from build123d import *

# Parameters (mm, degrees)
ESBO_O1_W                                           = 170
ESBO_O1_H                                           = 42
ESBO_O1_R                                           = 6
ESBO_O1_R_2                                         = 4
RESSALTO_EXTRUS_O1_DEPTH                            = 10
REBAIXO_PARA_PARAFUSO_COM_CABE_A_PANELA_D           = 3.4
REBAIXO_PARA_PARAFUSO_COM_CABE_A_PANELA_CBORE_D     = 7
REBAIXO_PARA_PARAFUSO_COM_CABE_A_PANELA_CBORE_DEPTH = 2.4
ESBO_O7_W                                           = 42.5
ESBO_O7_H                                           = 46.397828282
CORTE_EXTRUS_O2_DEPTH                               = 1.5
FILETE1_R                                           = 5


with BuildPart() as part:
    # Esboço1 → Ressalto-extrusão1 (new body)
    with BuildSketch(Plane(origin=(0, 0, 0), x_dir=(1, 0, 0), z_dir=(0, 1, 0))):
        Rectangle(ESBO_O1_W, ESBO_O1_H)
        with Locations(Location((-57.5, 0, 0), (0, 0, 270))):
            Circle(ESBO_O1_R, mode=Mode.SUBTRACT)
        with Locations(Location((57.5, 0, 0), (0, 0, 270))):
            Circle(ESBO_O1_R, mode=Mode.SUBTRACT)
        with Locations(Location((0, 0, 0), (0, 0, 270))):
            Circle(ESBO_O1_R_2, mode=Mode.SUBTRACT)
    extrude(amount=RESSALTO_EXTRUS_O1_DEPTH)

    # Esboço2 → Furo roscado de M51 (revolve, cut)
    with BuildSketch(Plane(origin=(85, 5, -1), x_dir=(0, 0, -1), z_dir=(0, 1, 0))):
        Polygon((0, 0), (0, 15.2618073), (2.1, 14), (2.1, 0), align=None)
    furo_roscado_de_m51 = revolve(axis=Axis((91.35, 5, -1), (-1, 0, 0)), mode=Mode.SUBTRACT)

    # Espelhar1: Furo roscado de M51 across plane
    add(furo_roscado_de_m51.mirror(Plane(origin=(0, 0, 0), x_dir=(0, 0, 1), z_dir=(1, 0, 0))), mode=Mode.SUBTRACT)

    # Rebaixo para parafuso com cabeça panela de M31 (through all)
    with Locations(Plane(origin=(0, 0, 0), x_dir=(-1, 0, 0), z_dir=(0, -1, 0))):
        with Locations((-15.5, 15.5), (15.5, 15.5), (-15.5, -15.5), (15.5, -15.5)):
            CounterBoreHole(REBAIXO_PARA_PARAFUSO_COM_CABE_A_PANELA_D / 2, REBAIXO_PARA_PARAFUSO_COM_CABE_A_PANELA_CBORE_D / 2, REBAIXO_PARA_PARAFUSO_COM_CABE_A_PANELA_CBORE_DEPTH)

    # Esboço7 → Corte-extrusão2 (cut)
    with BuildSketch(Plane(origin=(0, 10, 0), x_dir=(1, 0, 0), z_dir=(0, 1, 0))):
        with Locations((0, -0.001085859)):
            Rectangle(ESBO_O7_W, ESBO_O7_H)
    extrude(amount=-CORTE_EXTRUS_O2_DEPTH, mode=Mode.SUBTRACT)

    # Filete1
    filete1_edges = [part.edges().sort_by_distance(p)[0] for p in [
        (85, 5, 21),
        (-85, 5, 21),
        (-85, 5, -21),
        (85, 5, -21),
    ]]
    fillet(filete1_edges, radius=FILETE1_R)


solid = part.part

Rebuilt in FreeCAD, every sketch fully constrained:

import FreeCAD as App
import Part
import Sketcher
Q = App.Units.Quantity


def edges_at(feature, points):
    """Names of the edges that pass closest to the given points."""
    edges = feature.Shape.Edges
    near = lambda p: min(range(len(edges)), key=lambda i: edges[i].distToShape(Part.Vertex(*p))[0])
    return sorted({f"Edge{near(p) + 1}" for p in points})


def add_polygon(sketch, points):
    """Adds a closed chain of lines whose ends are joined by coincident constraints."""
    first, n = sketch.GeometryCount, len(points)
    for a, b in zip(points, points[1:] + points[:1]):
        sketch.addGeometry(Part.LineSegment(App.Vector(*a, 0), App.Vector(*b, 0)), False)
    for i in range(n):
        sketch.addConstraint(Sketcher.Constraint("Coincident", first + i, 2, first + (i + 1) % n, 1))

doc = App.newDocument("Part")
params = doc.addObject("Spreadsheet::Sheet", "Params")
for row, (alias, value) in enumerate([
    ("sketch1_diameter", "12 mm"),
    ("sketch1_diameter2", "8 mm"),
    ("sketch1_width", "170 mm"),
    ("sketch1_height", "42 mm"),
    ("pad1_length", "10 mm"),
    ("sketch2_width", "14 mm"),
    ("sketch2_height", "2.1 mm"),
    ("groove_angle", "360 deg"),
    ("sketch3_diameter", "3.4 mm"),
    ("hole_diameter", "3.4 mm"),
    ("hole_cbore_diameter", "7 mm"),
    ("hole_cbore_depth", "2.4 mm"),
    ("sketch4_width", "42.5 mm"),
    ("pocket1_length", "1.5 mm"),
    ("fillet_radius", "5 mm"),
], start=1):
    params.set(f"A{row}", alias)
    params.set(f"B{row}", "=" + value)
    params.setAlias(f"B{row}", alias)

body = doc.addObject("PartDesign::Body", "Body")

sketch1 = doc.addObject("Sketcher::SketchObject", "Sketch")
body.addObject(sketch1)
sketch1.AttachmentSupport = (doc.XZ_Plane, [""])
sketch1.MapMode = "FlatFace"
add_polygon(sketch1, [(-85, -21), (-85, 21), (85, 21), (85, -21)])
sketch1.addGeometry(Part.Circle(App.Vector(-57.5, 0, 0), App.Vector(0, 0, 1), 6), False)
sketch1.addGeometry(Part.Circle(App.Vector(0, 0, 0), App.Vector(0, 0, 1), 4), False)
sketch1.addGeometry(Part.Circle(App.Vector(57.5, 0, 0), App.Vector(0, 0, 1), 6), False)
sketch1.addConstraint(Sketcher.Constraint("Vertical", 0))
sketch1.addConstraint(Sketcher.Constraint("Horizontal", 1))
sketch1.addConstraint(Sketcher.Constraint("Vertical", 2))
sketch1.addConstraint(Sketcher.Constraint("Horizontal", 3))
sketch1.addConstraint(Sketcher.Constraint("Coincident", 5, 3, -1, 1))
sketch1.addConstraint(Sketcher.Constraint("Equal", 4, 6))
sketch1.addConstraint(Sketcher.Constraint("Symmetric", 4, 3, 6, 3, -1, 1))
sketch1.addConstraint(Sketcher.Constraint("Symmetric", 0, 2, 2, 2, -1, 1))
sketch1.addConstraint(Sketcher.Constraint("PointOnObject", 4, 3, -1))
sketch1.addConstraint(Sketcher.Constraint("Diameter", 4, Q("12 mm")))
sketch1.addConstraint(Sketcher.Constraint("Diameter", 5, Q("8 mm")))
sketch1.addConstraint(Sketcher.Constraint("DistanceX", 1, 1, 1, 2, Q("170 mm")))
sketch1.addConstraint(Sketcher.Constraint("DistanceY", 0, 1, 0, 2, Q("42 mm")))
sketch1.addConstraint(Sketcher.Constraint("DistanceX", 4, 3, 6, 3, Q("115 mm")))
sketch1.setExpression("Constraints[13]", "Params.sketch1_diameter")
sketch1.setExpression("Constraints[14]", "Params.sketch1_diameter2")
sketch1.setExpression("Constraints[15]", "Params.sketch1_width")
sketch1.setExpression("Constraints[16]", "Params.sketch1_height")
pad1 = doc.addObject("PartDesign::Pad", "Pad")
body.addObject(pad1)
pad1.Profile = sketch1
pad1.setExpression("Length", "Params.pad1_length")
pad1.Reversed = True

sketch2 = doc.addObject("Sketcher::SketchObject", "Sketch001")
body.addObject(sketch2)
sketch2.AttachmentSupport = (doc.XZ_Plane, [""])
sketch2.MapMode = "FlatFace"
sketch2.AttachmentOffset = App.Placement(App.Vector(0, 0, -5), App.Rotation())
add_polygon(sketch2, [(69.7, -1), (85, -1), (85, -3.1), (71, -3.1)])
sketch2.addGeometry(Part.LineSegment(App.Vector(85, -1, 0), App.Vector(69.7, -1, 0)), True)
sketch2.addConstraint(Sketcher.Constraint("Horizontal", 0))
sketch2.addConstraint(Sketcher.Constraint("Vertical", 1))
sketch2.addConstraint(Sketcher.Constraint("Horizontal", 2))
sketch2.addConstraint(Sketcher.Constraint("Horizontal", 4))
sketch2.addConstraint(Sketcher.Constraint("Coincident", 4, 1, 0, 2))
sketch2.addConstraint(Sketcher.Constraint("Equal", 0, 4))
sketch2.addConstraint(Sketcher.Constraint("DistanceX", 2, 2, 2, 1, Q("14 mm")))
sketch2.addConstraint(Sketcher.Constraint("Angle", 3, Q("121 deg")))
sketch2.addConstraint(Sketcher.Constraint("DistanceY", 1, 2, 1, 1, Q("2.1 mm")))
sketch2.addConstraint(Sketcher.Constraint("DistanceX", -1, 1, 0, 2, Q("85 mm")))
sketch2.addConstraint(Sketcher.Constraint("DistanceY", 0, 2, -1, 1, Q("1 mm")))
sketch2.setExpression("Constraints[10]", "Params.sketch2_width")
sketch2.setExpression("Constraints[12]", "Params.sketch2_height")
groove = doc.addObject("PartDesign::Groove", "Groove")
body.addObject(groove)
groove.Profile = sketch2
groove.ReferenceAxis = (sketch2, ["Axis0"])
groove.setExpression("Angle", "Params.groove_angle")
doc.recompute()

mirrored = doc.addObject("PartDesign::Mirrored", "Mirrored")
body.addObject(mirrored)
mirrored.Originals = [groove]
mirrored.MirrorPlane = (doc.YZ_Plane, [""])
body.Tip = mirrored

sketch3 = doc.addObject("Sketcher::SketchObject", "Sketch002")
body.addObject(sketch3)
sketch3.AttachmentSupport = (doc.XZ_Plane, [""])
sketch3.MapMode = "FlatFace"
sketch3.addGeometry(Part.Circle(App.Vector(15.5, -15.5, 0), App.Vector(0, 0, 1), 1.7), False)
sketch3.addGeometry(Part.Circle(App.Vector(-15.5, -15.5, 0), App.Vector(0, 0, 1), 1.7), False)
sketch3.addGeometry(Part.Circle(App.Vector(15.5, 15.5, 0), App.Vector(0, 0, 1), 1.7), False)
sketch3.addGeometry(Part.Circle(App.Vector(-15.5, 15.5, 0), App.Vector(0, 0, 1), 1.7), False)
sketch3.addConstraint(Sketcher.Constraint("Equal", 0, 1))
sketch3.addConstraint(Sketcher.Constraint("Equal", 1, 2))
sketch3.addConstraint(Sketcher.Constraint("Equal", 2, 3))
sketch3.addConstraint(Sketcher.Constraint("Symmetric", 1, 3, 2, 3, -1, 1))
sketch3.addConstraint(Sketcher.Constraint("Symmetric", 0, 3, 3, 3, -1, 1))
sketch3.addConstraint(Sketcher.Constraint("Symmetric", 0, 3, 1, 3, -2))
sketch3.addConstraint(Sketcher.Constraint("Diameter", 0, Q("3.4 mm")))
sketch3.addConstraint(Sketcher.Constraint("DistanceX", 1, 3, 0, 3, Q("31 mm")))
sketch3.addConstraint(Sketcher.Constraint("DistanceY", 0, 3, 2, 3, Q("31 mm")))
sketch3.setExpression("Constraints[6]", "Params.sketch3_diameter")
doc.recompute()
hole = doc.addObject("PartDesign::Hole", "Hole")
body.addObject(hole)
hole.Profile = sketch3
hole.ThreadType = "None"
hole.setExpression("Diameter", "Params.hole_diameter")
hole.DepthType = "ThroughAll"
hole.HoleCutType = "Counterbore"
hole.setExpression("HoleCutDiameter", "Params.hole_cbore_diameter")
hole.setExpression("HoleCutDepth", "Params.hole_cbore_depth")

sketch4 = doc.addObject("Sketcher::SketchObject", "Sketch003")
body.addObject(sketch4)
sketch4.AttachmentSupport = (doc.XZ_Plane, [""])
sketch4.MapMode = "FlatFace"
sketch4.AttachmentOffset = App.Placement(App.Vector(0, 0, -10), App.Rotation())
add_polygon(sketch4, [(-21, -23), (-21, 23), (21, 23), (21, -23)])
sketch4.addConstraint(Sketcher.Constraint("Vertical", 0))
sketch4.addConstraint(Sketcher.Constraint("Horizontal", 1))
sketch4.addConstraint(Sketcher.Constraint("Vertical", 2))
sketch4.addConstraint(Sketcher.Constraint("Horizontal", 3))
sketch4.addConstraint(Sketcher.Constraint("DistanceX", 1, 1, 1, 2, Q("42.5 mm")))
sketch4.addConstraint(Sketcher.Constraint("DistanceY", -1, 1, 0, 2, Q("23.2 mm")))
sketch4.addConstraint(Sketcher.Constraint("DistanceX", 0, 2, -1, 1, Q("21.25 mm")))
sketch4.addConstraint(Sketcher.Constraint("DistanceY", 0, 1, 0, 2, Q("46.397828 mm")))
sketch4.setExpression("Constraints[8]", "Params.sketch4_width")
pocket1 = doc.addObject("PartDesign::Pocket", "Pocket")
body.addObject(pocket1)
pocket1.Profile = sketch4
pocket1.setExpression("Length", "Params.pocket1_length")
pocket1.Reversed = True
doc.recompute()

fillet = doc.addObject("PartDesign::Fillet", "Fillet")
body.addObject(fillet)
fillet.Base = (pocket1, edges_at(pocket1, [
    (85, 5, 21),
    (-85, 5, 21),
    (-85, 5, -21),
    (85, 5, -21),
]))
fillet.setExpression("Radius", "Params.fillet_radius")

doc.recompute()
